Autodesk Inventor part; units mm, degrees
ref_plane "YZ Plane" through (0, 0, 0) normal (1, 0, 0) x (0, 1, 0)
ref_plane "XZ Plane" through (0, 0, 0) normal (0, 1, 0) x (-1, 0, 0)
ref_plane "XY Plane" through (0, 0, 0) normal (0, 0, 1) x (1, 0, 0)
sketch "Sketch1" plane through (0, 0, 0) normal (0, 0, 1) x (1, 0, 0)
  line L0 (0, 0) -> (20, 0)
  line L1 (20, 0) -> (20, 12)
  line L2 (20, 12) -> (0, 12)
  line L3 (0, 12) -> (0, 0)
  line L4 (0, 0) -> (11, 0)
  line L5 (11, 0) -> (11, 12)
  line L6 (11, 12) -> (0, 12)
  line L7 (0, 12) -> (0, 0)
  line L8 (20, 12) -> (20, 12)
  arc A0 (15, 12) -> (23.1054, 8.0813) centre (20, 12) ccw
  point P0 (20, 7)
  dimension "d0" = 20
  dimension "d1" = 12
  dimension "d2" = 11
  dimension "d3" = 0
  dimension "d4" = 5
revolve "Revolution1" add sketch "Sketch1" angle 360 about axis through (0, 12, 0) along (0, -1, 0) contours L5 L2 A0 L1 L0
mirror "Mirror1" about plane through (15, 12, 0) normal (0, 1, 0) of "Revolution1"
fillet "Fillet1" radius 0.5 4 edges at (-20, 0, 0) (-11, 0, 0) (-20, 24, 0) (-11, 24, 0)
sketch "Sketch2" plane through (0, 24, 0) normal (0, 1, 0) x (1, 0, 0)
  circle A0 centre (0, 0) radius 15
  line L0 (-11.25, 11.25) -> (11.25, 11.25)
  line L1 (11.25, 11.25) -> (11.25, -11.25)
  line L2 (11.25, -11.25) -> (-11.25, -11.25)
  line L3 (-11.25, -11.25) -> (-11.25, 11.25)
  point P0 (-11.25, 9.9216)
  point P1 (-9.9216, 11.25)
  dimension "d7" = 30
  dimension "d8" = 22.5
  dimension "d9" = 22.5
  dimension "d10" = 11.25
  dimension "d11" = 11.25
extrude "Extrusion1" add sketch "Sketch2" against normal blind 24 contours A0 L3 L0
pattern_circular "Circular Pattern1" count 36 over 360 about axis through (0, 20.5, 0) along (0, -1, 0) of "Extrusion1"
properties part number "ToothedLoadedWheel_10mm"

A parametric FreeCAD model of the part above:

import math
import FreeCAD as App
import Part
import Sketcher
from FreeCAD import Vector
Q = App.Units.Quantity


def edges_at(feature, points):
    """Names of the edges that pass closest to the given points."""
    edges = feature.Shape.Edges
    near = lambda p: min(range(len(edges)), key=lambda i: edges[i].distToShape(Part.Vertex(*p))[0])
    return sorted({f"Edge{near(p) + 1}" for p in points})

doc = App.newDocument("Part")
params = doc.addObject("Spreadsheet::Sheet", "Params")
for row, (alias, value) in enumerate([
    ("sketch1_radius", "5 mm"),
    ("sketch1_height", "12 mm"),
    ("revolution_angle", "360 deg"),
    ("fillet_radius", "0.5 mm"),
    ("sketch2_radius", "15 mm"),
    ("pad1_length", "24 mm"),
], start=1):
    params.set(f"A{row}", alias)
    params.set(f"B{row}", "=" + value)
    params.setAlias(f"B{row}", alias)

body = doc.addObject("PartDesign::Body", "Body")

sketch1 = body.newObject("Sketcher::SketchObject", "Sketch")
sketch1.AttachmentSupport = (doc.getObject("XY_Plane"), [""])
sketch1.MapMode = "FlatFace"
sketch1.addGeometry([
    Part.LineSegment(Vector(11, 12, 0), Vector(11, 0, 0)),
    Part.LineSegment(Vector(11, 0, 0), Vector(20, 0, 0)),
    Part.LineSegment(Vector(20, 0, 0), Vector(20, 7, 0)),
    Part.ArcOfCircle(Part.Circle(Vector(20, 12, 0), Vector(0, 0, 1), 5), math.radians(180), math.radians(270)),
    Part.LineSegment(Vector(15, 12, 0), Vector(11, 12, 0)),
], False)
sketch1.addConstraint([
    Sketcher.Constraint("Coincident", 0, 2, 1, 1),
    Sketcher.Constraint("Coincident", 1, 2, 2, 1),
    Sketcher.Constraint("Coincident", 2, 2, 3, 2),
    Sketcher.Constraint("Coincident", 3, 1, 4, 1),
    Sketcher.Constraint("Coincident", 4, 2, 0, 1),
    Sketcher.Constraint("Vertical", 0),
    Sketcher.Constraint("Horizontal", 1),
    Sketcher.Constraint("Vertical", 2),
    Sketcher.Constraint("Horizontal", 4),
    Sketcher.Constraint("PointOnObject", 0, 2, -1),
    Sketcher.Constraint("Vertical", 3, 3, 1, 2),
    Sketcher.Constraint("Radius", 3, Q("5 mm")),
    Sketcher.Constraint("DistanceY", 0, 2, 0, 1, Q("12 mm")),
    Sketcher.Constraint("DistanceX", -1, 1, 3, 3, Q("20 mm")),
    Sketcher.Constraint("DistanceY", -1, 1, 3, 3, Q("12 mm")),
    Sketcher.Constraint("DistanceX", -1, 1, 0, 2, Q("11 mm")),
])
sketch1.setExpression("Constraints[11]", "Params.sketch1_radius")
sketch1.setExpression("Constraints[12]", "Params.sketch1_height")
revolution = body.newObject("PartDesign::Revolution", "Revolution")
revolution.Profile = sketch1
revolution.ReferenceAxis = (sketch1, ["V_Axis"])
revolution.setExpression("Angle", "Params.revolution_angle")
doc.recompute()

datumplane = body.newObject("PartDesign::Plane", "DatumPlane")
datumplane.AttachmentSupport = (doc.getObject("XZ_Plane"), [""])
datumplane.MapMode = "FlatFace"
datumplane.AttachmentOffset = App.Placement(Vector(0, 0, -12), App.Rotation())
mirrored = body.newObject("PartDesign::Mirrored", "Mirrored")
mirrored.Originals = [revolution]
mirrored.MirrorPlane = (datumplane, [""])
body.Tip = mirrored
doc.recompute()

fillet = body.newObject("PartDesign::Fillet", "Fillet")
fillet.Base = (mirrored, edges_at(mirrored, [
    (-20, 0, 0),
    (-11, 0, 0),
    (-20, 24, 0),
    (-11, 24, 0),
]))
fillet.setExpression("Radius", "Params.fillet_radius")

sketch2 = body.newObject("Sketcher::SketchObject", "Sketch001")
sketch2.AttachmentSupport = (doc.getObject("XZ_Plane"), [""])
sketch2.MapMode = "FlatFace"
sketch2.AttachmentOffset = App.Placement(Vector(0, 0, -24), App.Rotation())
sketch2.addGeometry([
    Part.ArcOfCircle(Part.Circle(Vector(0, 0, 0), Vector(0, 0, 1), 15), math.radians(-138.59), math.radians(-131.41)),
    Part.LineSegment(Vector(-9.9, -11.2, 0), Vector(-11.2, -11.2, 0)),
    Part.LineSegment(Vector(-11.2, -11.2, 0), Vector(-11.2, -9.9, 0)),
], False)
sketch2.addConstraint([
    Sketcher.Constraint("Coincident", 0, 2, 1, 1),
    Sketcher.Constraint("Coincident", 1, 2, 2, 1),
    Sketcher.Constraint("Coincident", 2, 2, 0, 1),
    Sketcher.Constraint("Horizontal", 1),
    Sketcher.Constraint("Vertical", 2),
    Sketcher.Constraint("Coincident", 0, 3, -1, 1),
    Sketcher.Constraint("Equal", 1, 2),
    Sketcher.Constraint("Radius", 0, Q("15 mm")),
    Sketcher.Constraint("DistanceY", 0, 2, -1, 1, Q("11.25 mm")),
])
sketch2.setExpression("Constraints[7]", "Params.sketch2_radius")
pad1 = body.newObject("PartDesign::Pad", "Pad")
pad1.Profile = sketch2
pad1.setExpression("Length", "Params.pad1_length")
doc.recompute()

polarpattern = body.newObject("PartDesign::PolarPattern", "PolarPattern")
polarpattern.Originals = [pad1]
polarpattern.Axis = (doc.getObject("Y_Axis"), [""])
polarpattern.Angle = 360
polarpattern.Occurrences = 36
body.Tip = polarpattern

doc.recompute()
